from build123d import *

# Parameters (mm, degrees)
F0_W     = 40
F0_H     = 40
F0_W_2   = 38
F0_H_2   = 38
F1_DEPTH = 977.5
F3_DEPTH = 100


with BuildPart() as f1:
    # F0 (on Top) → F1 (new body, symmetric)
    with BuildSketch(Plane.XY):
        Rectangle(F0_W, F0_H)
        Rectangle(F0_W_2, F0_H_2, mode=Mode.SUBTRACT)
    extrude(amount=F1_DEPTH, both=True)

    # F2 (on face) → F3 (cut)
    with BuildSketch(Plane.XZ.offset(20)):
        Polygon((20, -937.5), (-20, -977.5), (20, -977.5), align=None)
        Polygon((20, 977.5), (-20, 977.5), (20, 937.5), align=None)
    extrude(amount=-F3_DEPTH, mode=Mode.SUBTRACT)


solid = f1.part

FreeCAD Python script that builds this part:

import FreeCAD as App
import Part
import Sketcher

doc = App.newDocument("Part")
body = doc.addObject("PartDesign::Body", "Body")

# Sketch on XY plane
sketch1 = doc.addObject("Sketcher::SketchObject", "Sketch")
body.addObject(sketch1)
sketch1.AttachmentSupport = (doc.XY_Plane, [""])
sketch1.MapMode = "FlatFace"
sketch1.addGeometry(Part.LineSegment(App.Vector(-20, 20, 0), App.Vector(-20, -20, 0)), False)
sketch1.addGeometry(Part.LineSegment(App.Vector(-20, -20, 0), App.Vector(20, -20, 0)), False)
sketch1.addGeometry(Part.LineSegment(App.Vector(20, -20, 0), App.Vector(20, 20, 0)), False)
sketch1.addGeometry(Part.LineSegment(App.Vector(20, 20, 0), App.Vector(-20, 20, 0)), False)
sketch1.addGeometry(Part.LineSegment(App.Vector(19, -19, 0), App.Vector(-19, -19, 0)), False)
sketch1.addGeometry(Part.LineSegment(App.Vector(-19, -19, 0), App.Vector(-19, 19, 0)), False)
sketch1.addGeometry(Part.LineSegment(App.Vector(-19, 19, 0), App.Vector(19, 19, 0)), False)
sketch1.addGeometry(Part.LineSegment(App.Vector(19, 19, 0), App.Vector(19, -19, 0)), False)
sketch1.addConstraint(Sketcher.Constraint("Coincident", 0, 2, 1, 1))
sketch1.addConstraint(Sketcher.Constraint("Coincident", 1, 2, 2, 1))
sketch1.addConstraint(Sketcher.Constraint("Coincident", 2, 2, 3, 1))
sketch1.addConstraint(Sketcher.Constraint("Coincident", 3, 2, 0, 1))
sketch1.addConstraint(Sketcher.Constraint("Coincident", 4, 2, 5, 1))
sketch1.addConstraint(Sketcher.Constraint("Coincident", 5, 2, 6, 1))
sketch1.addConstraint(Sketcher.Constraint("Coincident", 6, 2, 7, 1))
sketch1.addConstraint(Sketcher.Constraint("Coincident", 7, 2, 4, 1))
sketch1.addConstraint(Sketcher.Constraint("Vertical", 0))
sketch1.addConstraint(Sketcher.Constraint("Horizontal", 1))
sketch1.addConstraint(Sketcher.Constraint("Vertical", 2))
sketch1.addConstraint(Sketcher.Constraint("Horizontal", 3))
sketch1.addConstraint(Sketcher.Constraint("Horizontal", 4))
sketch1.addConstraint(Sketcher.Constraint("Vertical", 5))
sketch1.addConstraint(Sketcher.Constraint("Horizontal", 6))
sketch1.addConstraint(Sketcher.Constraint("Vertical", 7))
sketch1.addConstraint(Sketcher.Constraint("Symmetric", 0, 2, 2, 2, -1, 1))
sketch1.addConstraint(Sketcher.Constraint("Symmetric", 4, 2, 6, 2, -1, 1))
sketch1.addConstraint(Sketcher.Constraint("Equal", 3, 0))
sketch1.addConstraint(Sketcher.Constraint("Equal", 6, 5))
sketch1.addConstraint(Sketcher.Constraint("DistanceX", 1, 1, 1, 2, 40.0))
sketch1.addConstraint(Sketcher.Constraint("DistanceX", 4, 2, 4, 1, 38.0))
pad1 = doc.addObject("PartDesign::Pad", "Pad")
body.addObject(pad1)
pad1.Profile = sketch1
pad1.Length = 1955
pad1.Midplane = True

# Sketch on XZ plane
sketch2 = doc.addObject("Sketcher::SketchObject", "Sketch001")
body.addObject(sketch2)
sketch2.AttachmentSupport = (doc.XZ_Plane, [""])
sketch2.MapMode = "FlatFace"
sketch2.AttachmentOffset = App.Placement(App.Vector(0, 0, 20), App.Rotation())
sketch2.addGeometry(Part.LineSegment(App.Vector(20, -938, 0), App.Vector(-20, -978, 0)), False)
sketch2.addGeometry(Part.LineSegment(App.Vector(-20, -978, 0), App.Vector(20, -978, 0)), False)
sketch2.addGeometry(Part.LineSegment(App.Vector(20, -978, 0), App.Vector(20, -938, 0)), False)
sketch2.addGeometry(Part.LineSegment(App.Vector(20, 978, 0), App.Vector(-20, 978, 0)), False)
sketch2.addGeometry(Part.LineSegment(App.Vector(-20, 978, 0), App.Vector(20, 938, 0)), False)
sketch2.addGeometry(Part.LineSegment(App.Vector(20, 938, 0), App.Vector(20, 978, 0)), False)
sketch2.addConstraint(Sketcher.Constraint("Coincident", 0, 2, 1, 1))
sketch2.addConstraint(Sketcher.Constraint("Coincident", 1, 2, 2, 1))
sketch2.addConstraint(Sketcher.Constraint("Coincident", 2, 2, 0, 1))
sketch2.addConstraint(Sketcher.Constraint("Coincident", 3, 2, 4, 1))
sketch2.addConstraint(Sketcher.Constraint("Coincident", 4, 2, 5, 1))
sketch2.addConstraint(Sketcher.Constraint("Coincident", 5, 2, 3, 1))
sketch2.addConstraint(Sketcher.Constraint("Horizontal", 1))
sketch2.addConstraint(Sketcher.Constraint("Vertical", 2))
sketch2.addConstraint(Sketcher.Constraint("Horizontal", 3))
sketch2.addConstraint(Sketcher.Constraint("Vertical", 5))
sketch2.addConstraint(Sketcher.Constraint("Symmetric", 1, 2, 3, 2, -1, 1))
sketch2.addConstraint(Sketcher.Constraint("Symmetric", 2, 2, 4, 2, -1))
sketch2.addConstraint(Sketcher.Constraint("Perpendicular", 0, 4))
sketch2.addConstraint(Sketcher.Constraint("Vertical", 0, 2, 3, 2))
sketch2.addConstraint(Sketcher.Constraint("DistanceX", 1, 1, 1, 2, 40.0))
sketch2.addConstraint(Sketcher.Constraint("DistanceY", 2, 2, 3, 2, 1915.0))
pocket1 = doc.addObject("PartDesign::Pocket", "Pocket")
body.addObject(pocket1)
pocket1.Profile = sketch2
pocket1.Length = 100

doc.recompute()
